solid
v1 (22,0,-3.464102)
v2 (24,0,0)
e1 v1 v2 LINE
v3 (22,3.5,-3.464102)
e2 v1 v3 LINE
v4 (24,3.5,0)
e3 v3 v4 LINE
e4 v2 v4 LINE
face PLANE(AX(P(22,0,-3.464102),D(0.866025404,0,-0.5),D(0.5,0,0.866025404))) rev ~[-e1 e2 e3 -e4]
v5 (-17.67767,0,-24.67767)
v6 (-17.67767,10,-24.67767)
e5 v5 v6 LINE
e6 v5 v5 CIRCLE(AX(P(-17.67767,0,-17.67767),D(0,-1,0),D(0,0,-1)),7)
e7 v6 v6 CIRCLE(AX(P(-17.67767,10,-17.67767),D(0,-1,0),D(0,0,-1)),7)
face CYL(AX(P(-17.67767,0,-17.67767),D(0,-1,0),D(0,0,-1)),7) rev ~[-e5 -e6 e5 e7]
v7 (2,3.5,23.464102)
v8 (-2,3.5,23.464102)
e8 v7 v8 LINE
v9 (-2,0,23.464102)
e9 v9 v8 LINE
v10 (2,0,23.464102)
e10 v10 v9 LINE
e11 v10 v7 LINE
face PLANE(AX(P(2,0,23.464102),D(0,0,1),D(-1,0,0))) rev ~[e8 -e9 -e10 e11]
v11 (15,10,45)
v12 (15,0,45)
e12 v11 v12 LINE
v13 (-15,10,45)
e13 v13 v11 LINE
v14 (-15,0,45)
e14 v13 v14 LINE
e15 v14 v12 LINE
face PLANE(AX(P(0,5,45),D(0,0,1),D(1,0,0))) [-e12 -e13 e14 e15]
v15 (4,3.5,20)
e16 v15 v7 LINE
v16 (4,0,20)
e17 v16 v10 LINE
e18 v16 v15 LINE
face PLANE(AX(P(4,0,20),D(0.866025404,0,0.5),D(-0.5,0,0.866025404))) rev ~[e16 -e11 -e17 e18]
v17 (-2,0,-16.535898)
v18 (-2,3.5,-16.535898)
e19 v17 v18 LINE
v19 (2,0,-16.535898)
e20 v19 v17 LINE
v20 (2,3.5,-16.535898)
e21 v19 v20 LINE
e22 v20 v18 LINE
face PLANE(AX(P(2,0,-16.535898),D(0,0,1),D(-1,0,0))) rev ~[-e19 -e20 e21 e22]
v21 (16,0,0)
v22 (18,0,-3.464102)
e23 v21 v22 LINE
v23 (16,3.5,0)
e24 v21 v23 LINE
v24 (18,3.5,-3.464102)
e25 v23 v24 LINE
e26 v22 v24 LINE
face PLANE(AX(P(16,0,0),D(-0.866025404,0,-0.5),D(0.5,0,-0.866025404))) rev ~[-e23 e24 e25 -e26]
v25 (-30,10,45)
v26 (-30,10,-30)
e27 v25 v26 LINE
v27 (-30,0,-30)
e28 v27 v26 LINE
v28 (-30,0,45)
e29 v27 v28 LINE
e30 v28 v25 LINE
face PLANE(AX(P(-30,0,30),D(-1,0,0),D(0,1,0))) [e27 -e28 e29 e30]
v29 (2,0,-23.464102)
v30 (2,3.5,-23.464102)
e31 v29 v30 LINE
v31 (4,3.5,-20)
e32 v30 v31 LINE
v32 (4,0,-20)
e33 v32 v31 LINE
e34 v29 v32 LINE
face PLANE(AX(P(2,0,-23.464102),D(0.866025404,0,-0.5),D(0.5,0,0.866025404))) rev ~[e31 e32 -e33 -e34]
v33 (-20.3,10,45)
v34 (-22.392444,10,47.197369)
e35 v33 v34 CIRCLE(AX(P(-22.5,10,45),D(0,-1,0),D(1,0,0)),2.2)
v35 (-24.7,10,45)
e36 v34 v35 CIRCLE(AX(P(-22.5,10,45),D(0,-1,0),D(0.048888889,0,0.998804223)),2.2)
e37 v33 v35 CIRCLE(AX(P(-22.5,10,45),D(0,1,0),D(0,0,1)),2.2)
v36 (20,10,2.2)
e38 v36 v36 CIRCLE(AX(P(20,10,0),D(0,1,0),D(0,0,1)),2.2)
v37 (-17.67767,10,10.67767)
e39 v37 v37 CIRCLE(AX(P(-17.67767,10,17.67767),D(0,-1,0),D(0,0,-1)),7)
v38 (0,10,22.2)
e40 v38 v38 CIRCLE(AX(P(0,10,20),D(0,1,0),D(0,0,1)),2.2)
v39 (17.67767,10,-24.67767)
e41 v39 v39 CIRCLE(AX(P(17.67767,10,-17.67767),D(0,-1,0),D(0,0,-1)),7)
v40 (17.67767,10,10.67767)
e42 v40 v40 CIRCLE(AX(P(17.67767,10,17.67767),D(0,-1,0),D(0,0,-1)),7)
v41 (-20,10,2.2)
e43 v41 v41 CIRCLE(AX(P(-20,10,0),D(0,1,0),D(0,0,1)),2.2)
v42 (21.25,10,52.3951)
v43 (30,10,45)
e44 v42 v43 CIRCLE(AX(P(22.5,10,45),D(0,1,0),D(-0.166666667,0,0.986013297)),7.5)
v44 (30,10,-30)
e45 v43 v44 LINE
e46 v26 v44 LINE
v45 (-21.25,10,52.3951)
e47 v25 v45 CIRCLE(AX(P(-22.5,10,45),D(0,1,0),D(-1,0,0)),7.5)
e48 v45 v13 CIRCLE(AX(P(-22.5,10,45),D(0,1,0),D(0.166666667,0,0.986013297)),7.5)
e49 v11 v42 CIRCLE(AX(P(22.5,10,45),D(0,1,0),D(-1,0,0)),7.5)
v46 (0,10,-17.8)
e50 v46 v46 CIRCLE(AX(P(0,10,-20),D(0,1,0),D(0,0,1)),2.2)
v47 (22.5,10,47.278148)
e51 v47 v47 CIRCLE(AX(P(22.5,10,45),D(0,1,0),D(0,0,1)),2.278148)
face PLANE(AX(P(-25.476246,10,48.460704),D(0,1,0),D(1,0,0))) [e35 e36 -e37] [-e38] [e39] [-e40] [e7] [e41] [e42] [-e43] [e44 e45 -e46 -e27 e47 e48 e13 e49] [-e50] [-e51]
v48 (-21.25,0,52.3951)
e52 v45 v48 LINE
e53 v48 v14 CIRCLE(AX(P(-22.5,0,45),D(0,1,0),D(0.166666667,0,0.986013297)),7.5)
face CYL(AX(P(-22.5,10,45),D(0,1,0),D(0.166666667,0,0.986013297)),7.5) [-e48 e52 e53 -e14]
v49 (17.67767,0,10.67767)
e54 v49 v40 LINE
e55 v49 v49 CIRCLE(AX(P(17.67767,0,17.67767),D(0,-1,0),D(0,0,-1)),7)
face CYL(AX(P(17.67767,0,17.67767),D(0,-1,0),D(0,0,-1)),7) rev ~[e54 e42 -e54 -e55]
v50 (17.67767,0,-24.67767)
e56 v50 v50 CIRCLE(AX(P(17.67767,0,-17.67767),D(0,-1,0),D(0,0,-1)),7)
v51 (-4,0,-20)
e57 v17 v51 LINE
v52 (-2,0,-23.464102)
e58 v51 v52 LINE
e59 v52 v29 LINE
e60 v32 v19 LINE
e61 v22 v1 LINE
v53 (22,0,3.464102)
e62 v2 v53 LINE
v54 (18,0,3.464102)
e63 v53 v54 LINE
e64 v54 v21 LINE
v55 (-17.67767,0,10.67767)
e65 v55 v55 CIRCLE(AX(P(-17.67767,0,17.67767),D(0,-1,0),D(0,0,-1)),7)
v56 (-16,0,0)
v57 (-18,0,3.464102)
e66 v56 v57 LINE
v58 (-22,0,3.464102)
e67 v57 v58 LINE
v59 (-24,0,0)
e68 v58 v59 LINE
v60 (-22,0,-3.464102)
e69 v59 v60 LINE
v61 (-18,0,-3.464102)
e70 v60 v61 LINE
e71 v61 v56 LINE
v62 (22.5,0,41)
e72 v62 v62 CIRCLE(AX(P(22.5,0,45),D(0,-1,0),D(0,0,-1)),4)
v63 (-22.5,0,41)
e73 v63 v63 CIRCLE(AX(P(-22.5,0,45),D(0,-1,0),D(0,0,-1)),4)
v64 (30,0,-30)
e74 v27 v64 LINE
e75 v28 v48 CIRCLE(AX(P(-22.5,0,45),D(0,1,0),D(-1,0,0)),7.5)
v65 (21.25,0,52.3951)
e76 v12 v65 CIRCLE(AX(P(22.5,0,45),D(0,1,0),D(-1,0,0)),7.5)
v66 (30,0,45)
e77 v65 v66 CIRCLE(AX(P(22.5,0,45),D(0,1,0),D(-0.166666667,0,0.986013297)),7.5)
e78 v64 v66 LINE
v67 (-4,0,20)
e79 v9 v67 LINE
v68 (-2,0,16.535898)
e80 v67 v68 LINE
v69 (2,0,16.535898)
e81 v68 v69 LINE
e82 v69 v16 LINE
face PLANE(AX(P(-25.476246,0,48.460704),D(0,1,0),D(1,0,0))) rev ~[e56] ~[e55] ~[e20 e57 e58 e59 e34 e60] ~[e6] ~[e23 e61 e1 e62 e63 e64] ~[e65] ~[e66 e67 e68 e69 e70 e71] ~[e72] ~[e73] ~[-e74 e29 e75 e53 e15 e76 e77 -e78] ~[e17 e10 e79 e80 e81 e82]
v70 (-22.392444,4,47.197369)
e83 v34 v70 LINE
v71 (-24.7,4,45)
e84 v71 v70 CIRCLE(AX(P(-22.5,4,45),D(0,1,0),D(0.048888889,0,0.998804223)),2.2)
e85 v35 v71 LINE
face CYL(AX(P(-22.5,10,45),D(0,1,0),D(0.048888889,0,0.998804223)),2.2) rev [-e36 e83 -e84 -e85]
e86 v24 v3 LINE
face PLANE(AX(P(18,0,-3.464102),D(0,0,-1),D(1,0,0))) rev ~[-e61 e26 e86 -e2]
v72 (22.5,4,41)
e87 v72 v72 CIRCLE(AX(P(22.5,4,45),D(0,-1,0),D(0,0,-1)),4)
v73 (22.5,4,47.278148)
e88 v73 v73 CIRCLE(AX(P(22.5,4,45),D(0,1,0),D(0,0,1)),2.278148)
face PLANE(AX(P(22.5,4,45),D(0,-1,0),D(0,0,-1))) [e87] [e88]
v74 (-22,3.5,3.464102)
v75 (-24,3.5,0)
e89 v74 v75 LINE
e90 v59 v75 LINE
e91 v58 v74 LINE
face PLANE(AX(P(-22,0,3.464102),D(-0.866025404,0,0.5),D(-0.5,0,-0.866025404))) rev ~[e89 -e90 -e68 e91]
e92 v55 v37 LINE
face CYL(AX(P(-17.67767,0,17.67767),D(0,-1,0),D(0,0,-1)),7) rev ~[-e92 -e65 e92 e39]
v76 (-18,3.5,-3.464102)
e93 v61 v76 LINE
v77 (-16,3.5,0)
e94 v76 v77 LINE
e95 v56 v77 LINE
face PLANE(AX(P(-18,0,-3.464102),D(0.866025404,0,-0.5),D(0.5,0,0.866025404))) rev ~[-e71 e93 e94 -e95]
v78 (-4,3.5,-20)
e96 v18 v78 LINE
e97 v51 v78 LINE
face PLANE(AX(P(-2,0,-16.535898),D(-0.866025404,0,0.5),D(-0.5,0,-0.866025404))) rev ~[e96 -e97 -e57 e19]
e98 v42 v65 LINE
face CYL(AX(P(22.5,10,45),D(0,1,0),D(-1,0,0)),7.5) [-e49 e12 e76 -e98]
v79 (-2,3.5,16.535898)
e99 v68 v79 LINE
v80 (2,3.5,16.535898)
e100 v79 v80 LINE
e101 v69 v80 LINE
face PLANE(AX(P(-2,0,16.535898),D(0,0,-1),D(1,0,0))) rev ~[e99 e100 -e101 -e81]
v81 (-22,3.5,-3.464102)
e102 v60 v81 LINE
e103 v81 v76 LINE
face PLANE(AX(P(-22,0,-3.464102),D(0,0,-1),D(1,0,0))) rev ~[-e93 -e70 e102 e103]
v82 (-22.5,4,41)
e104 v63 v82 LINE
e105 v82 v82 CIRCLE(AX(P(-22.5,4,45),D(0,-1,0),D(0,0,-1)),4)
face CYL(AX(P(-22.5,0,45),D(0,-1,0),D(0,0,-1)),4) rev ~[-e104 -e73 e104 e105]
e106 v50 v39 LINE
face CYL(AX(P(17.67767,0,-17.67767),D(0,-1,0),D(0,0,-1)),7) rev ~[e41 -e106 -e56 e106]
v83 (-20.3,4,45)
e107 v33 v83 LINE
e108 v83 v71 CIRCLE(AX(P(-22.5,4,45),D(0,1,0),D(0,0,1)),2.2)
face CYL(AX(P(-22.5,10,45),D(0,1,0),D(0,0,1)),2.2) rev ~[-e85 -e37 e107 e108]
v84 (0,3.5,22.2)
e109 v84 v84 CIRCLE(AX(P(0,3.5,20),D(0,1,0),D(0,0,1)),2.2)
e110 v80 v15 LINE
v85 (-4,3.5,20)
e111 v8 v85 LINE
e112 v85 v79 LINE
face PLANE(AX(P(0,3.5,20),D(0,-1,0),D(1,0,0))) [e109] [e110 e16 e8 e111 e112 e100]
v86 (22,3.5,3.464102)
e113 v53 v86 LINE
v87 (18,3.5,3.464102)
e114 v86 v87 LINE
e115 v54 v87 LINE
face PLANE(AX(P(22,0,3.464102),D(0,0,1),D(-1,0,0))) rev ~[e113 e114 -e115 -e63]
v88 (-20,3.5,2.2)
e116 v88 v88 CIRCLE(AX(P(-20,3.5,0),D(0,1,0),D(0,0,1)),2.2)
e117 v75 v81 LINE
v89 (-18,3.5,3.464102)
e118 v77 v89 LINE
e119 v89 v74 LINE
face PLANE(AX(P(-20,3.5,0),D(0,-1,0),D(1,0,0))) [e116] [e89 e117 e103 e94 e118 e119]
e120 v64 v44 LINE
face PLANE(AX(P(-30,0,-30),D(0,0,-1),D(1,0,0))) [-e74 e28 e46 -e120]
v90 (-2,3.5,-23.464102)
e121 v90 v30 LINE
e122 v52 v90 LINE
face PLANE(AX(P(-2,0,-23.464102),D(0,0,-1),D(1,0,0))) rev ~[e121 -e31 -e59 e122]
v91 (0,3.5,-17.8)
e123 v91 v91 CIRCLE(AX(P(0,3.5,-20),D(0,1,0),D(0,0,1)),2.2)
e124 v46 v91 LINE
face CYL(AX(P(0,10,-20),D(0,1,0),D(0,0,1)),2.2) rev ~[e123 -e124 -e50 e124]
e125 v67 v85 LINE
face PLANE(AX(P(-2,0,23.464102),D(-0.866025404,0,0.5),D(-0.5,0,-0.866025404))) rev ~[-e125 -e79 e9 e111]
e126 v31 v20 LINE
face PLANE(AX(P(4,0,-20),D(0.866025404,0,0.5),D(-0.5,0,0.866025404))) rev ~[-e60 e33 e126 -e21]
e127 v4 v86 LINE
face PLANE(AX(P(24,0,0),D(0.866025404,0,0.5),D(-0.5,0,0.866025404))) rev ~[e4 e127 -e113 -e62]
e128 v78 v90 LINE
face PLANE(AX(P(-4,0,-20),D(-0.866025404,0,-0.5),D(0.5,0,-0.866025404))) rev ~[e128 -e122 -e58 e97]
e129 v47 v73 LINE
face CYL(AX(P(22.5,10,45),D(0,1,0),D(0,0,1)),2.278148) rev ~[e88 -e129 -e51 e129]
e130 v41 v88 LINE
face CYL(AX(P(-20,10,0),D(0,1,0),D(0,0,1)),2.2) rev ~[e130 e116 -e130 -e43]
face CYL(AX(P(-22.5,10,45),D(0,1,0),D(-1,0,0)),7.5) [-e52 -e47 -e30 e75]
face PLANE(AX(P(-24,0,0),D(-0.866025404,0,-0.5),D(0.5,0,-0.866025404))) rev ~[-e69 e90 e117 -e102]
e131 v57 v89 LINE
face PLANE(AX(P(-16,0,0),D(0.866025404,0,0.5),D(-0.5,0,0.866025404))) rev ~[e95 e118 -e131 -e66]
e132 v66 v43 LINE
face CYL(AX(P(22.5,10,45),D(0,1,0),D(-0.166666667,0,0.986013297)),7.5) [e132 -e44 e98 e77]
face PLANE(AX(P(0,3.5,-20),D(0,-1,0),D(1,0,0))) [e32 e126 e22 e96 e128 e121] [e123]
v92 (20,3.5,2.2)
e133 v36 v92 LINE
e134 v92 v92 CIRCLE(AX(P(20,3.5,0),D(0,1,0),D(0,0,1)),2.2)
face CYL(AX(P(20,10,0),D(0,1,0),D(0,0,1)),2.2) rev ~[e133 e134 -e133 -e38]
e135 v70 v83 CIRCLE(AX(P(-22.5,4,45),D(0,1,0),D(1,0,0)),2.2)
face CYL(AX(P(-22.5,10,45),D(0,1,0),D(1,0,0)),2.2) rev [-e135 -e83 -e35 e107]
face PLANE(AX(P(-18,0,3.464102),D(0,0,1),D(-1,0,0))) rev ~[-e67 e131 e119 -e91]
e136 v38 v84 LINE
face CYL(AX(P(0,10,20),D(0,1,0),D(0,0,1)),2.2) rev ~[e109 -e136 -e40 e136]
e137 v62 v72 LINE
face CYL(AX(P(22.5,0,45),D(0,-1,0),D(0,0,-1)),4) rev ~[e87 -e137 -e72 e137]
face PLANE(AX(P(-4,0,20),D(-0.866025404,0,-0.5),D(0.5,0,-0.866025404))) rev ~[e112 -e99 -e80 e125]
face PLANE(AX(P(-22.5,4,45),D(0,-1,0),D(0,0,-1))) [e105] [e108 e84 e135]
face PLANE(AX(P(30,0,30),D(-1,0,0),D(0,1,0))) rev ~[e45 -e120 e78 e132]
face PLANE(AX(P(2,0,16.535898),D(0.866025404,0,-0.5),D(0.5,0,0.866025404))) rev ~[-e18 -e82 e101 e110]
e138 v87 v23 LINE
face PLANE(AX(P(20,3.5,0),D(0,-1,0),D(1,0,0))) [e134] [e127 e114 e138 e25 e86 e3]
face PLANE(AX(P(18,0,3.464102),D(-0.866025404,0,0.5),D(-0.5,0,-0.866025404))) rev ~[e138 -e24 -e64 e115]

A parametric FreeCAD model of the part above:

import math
import FreeCAD as App
import Part
import Sketcher

V = App.Vector
Q = App.Units.Quantity

doc = App.newDocument("Part")
body = doc.addObject("PartDesign::Body", "Body")

sketch1 = doc.addObject("Sketcher::SketchObject", "Sketch")
body.addObject(sketch1)
sketch1.AttachmentSupport = (doc.XZ_Plane, [""])
sketch1.MapMode = "FlatFace"
sketch1.addGeometry([
    Part.LineSegment(V(-30, -30, 0), V(-30, 30, 0)),
    Part.LineSegment(V(-30, 30, 0), V(30, 30, 0)),
    Part.LineSegment(V(30, 30, 0), V(30, -30, 0)),
    Part.LineSegment(V(30, -30, 0), V(-30, -30, 0)),
], False)
sketch1.addConstraint([
    Sketcher.Constraint("Coincident", 0, 2, 1, 1),
    Sketcher.Constraint("Coincident", 1, 2, 2, 1),
    Sketcher.Constraint("Coincident", 2, 2, 3, 1),
    Sketcher.Constraint("Coincident", 3, 2, 0, 1),
    Sketcher.Constraint("Vertical", 0),
    Sketcher.Constraint("Horizontal", 1),
    Sketcher.Constraint("Vertical", 2),
    Sketcher.Constraint("Horizontal", 3),
    Sketcher.Constraint("Symmetric", 0, 2, 2, 2, -1, 1),
    Sketcher.Constraint("Equal", 3, 0),
    Sketcher.Constraint("DistanceX", 1, 1, 1, 2, Q("60 mm")),
])
pad1 = doc.addObject("PartDesign::Pad", "Pad")
body.addObject(pad1)
pad1.Profile = sketch1
pad1.Length = 10
pad1.Reversed = True

sketch2 = doc.addObject("Sketcher::SketchObject", "Sketch001")
body.addObject(sketch2)
sketch2.AttachmentSupport = (doc.XZ_Plane, [""])
sketch2.MapMode = "FlatFace"
sketch2.AttachmentOffset = App.Placement(V(0, 0, -10), App.Rotation())
sketch2.addGeometry([
    Part.Circle(V(0, -20, 0), V(0, 0, 1), 2.2),
    Part.Circle(V(-20, 0, 0), V(0, 0, 1), 2.2),
    Part.Circle(V(0, 20, 0), V(0, 0, 1), 2.2),
    Part.Circle(V(20, 0, 0), V(0, 0, 1), 2.2),
], False)
sketch2.addConstraint([
    Sketcher.Constraint("Equal", 0, 1),
    Sketcher.Constraint("Equal", 1, 2),
    Sketcher.Constraint("Equal", 2, 3),
    Sketcher.Constraint("Symmetric", 0, 3, 2, 3, -1, 1),
    Sketcher.Constraint("Symmetric", 1, 3, 3, 3, -1, 1),
    Sketcher.Constraint("PointOnObject", 0, 3, -2),
    Sketcher.Constraint("PointOnObject", 1, 3, -1),
    Sketcher.Constraint("Diameter", 0, Q("4.4 mm")),
    Sketcher.Constraint("DistanceY", 0, 3, -1, 1, Q("20 mm")),
    Sketcher.Constraint("DistanceX", 1, 3, -1, 1, Q("20 mm")),
])
pocket1 = doc.addObject("PartDesign::Pocket", "Pocket")
body.addObject(pocket1)
pocket1.Profile = sketch2
pocket1.Length = 10
pocket1.Reversed = True

sketch3 = doc.addObject("Sketcher::SketchObject", "Sketch002")
body.addObject(sketch3)
sketch3.AttachmentSupport = (doc.XZ_Plane, [""])
sketch3.MapMode = "FlatFace"
sketch3.addGeometry([
    Part.LineSegment(V(4, 20, 0), V(2, 23.5, 0)),
    Part.LineSegment(V(2, 23.5, 0), V(-2, 23.5, 0)),
    Part.LineSegment(V(-2, 23.5, 0), V(-4, 20, 0)),
    Part.LineSegment(V(-4, 20, 0), V(-2, 16.5, 0)),
    Part.LineSegment(V(-2, 16.5, 0), V(2, 16.5, 0)),
    Part.LineSegment(V(2, 16.5, 0), V(4, 20, 0)),
    Part.LineSegment(V(-16, 0, 0), V(-18, 3.5, 0)),
    Part.LineSegment(V(-18, 3.5, 0), V(-22, 3.5, 0)),
    Part.LineSegment(V(-22, 3.5, 0), V(-24, 0, 0)),
    Part.LineSegment(V(-24, 0, 0), V(-22, -3.5, 0)),
    Part.LineSegment(V(-22, -3.5, 0), V(-18, -3.5, 0)),
    Part.LineSegment(V(-18, -3.5, 0), V(-16, 0, 0)),
    Part.LineSegment(V(24, 0, 0), V(22, 3.5, 0)),
    Part.LineSegment(V(22, 3.5, 0), V(18, 3.5, 0)),
    Part.LineSegment(V(18, 3.5, 0), V(16, 0, 0)),
    Part.LineSegment(V(16, 0, 0), V(18, -3.5, 0)),
    Part.LineSegment(V(18, -3.5, 0), V(22, -3.5, 0)),
    Part.LineSegment(V(22, -3.5, 0), V(24, 0, 0)),
    Part.LineSegment(V(4, -20, 0), V(2, -16.5, 0)),
    Part.LineSegment(V(2, -16.5, 0), V(-2, -16.5, 0)),
    Part.LineSegment(V(-2, -16.5, 0), V(-4, -20, 0)),
    Part.LineSegment(V(-4, -20, 0), V(-2, -23.5, 0)),
    Part.LineSegment(V(-2, -23.5, 0), V(2, -23.5, 0)),
    Part.LineSegment(V(2, -23.5, 0), V(4, -20, 0)),
], False)
sketch3.addConstraint([
    Sketcher.Constraint("Coincident", 0, 2, 1, 1),
    Sketcher.Constraint("Coincident", 1, 2, 2, 1),
    Sketcher.Constraint("Coincident", 2, 2, 3, 1),
    Sketcher.Constraint("Coincident", 3, 2, 4, 1),
    Sketcher.Constraint("Coincident", 4, 2, 5, 1),
    Sketcher.Constraint("Coincident", 5, 2, 0, 1),
    Sketcher.Constraint("Coincident", 6, 2, 7, 1),
    Sketcher.Constraint("Coincident", 7, 2, 8, 1),
    Sketcher.Constraint("Coincident", 8, 2, 9, 1),
    Sketcher.Constraint("Coincident", 9, 2, 10, 1),
    Sketcher.Constraint("Coincident", 10, 2, 11, 1),
    Sketcher.Constraint("Coincident", 11, 2, 6, 1),
    Sketcher.Constraint("Coincident", 12, 2, 13, 1),
    Sketcher.Constraint("Coincident", 13, 2, 14, 1),
    Sketcher.Constraint("Coincident", 14, 2, 15, 1),
    Sketcher.Constraint("Coincident", 15, 2, 16, 1),
    Sketcher.Constraint("Coincident", 16, 2, 17, 1),
    Sketcher.Constraint("Coincident", 17, 2, 12, 1),
    Sketcher.Constraint("Coincident", 18, 2, 19, 1),
    Sketcher.Constraint("Coincident", 19, 2, 20, 1),
    Sketcher.Constraint("Coincident", 20, 2, 21, 1),
    Sketcher.Constraint("Coincident", 21, 2, 22, 1),
    Sketcher.Constraint("Coincident", 22, 2, 23, 1),
    Sketcher.Constraint("Coincident", 23, 2, 18, 1),
    Sketcher.Constraint("Horizontal", 1),
    Sketcher.Constraint("Horizontal", 4),
    Sketcher.Constraint("Horizontal", 7),
    Sketcher.Constraint("Horizontal", 10),
    Sketcher.Constraint("Horizontal", 13),
    Sketcher.Constraint("Horizontal", 16),
    Sketcher.Constraint("Horizontal", 19),
    Sketcher.Constraint("Horizontal", 22),
    Sketcher.Constraint("Symmetric", 9, 2, 12, 2, -1, 1),
    Sketcher.Constraint("Symmetric", 11, 2, 14, 2, -1, 1),
    Sketcher.Constraint("Symmetric", 6, 2, 15, 2, -1, 1),
    Sketcher.Constraint("Symmetric", 8, 2, 17, 2, -1, 1),
    Sketcher.Constraint("Symmetric", 3, 2, 18, 2, -1, 1),
    Sketcher.Constraint("Symmetric", 5, 2, 20, 2, -1, 1),
    Sketcher.Constraint("Symmetric", 0, 2, 21, 2, -1, 1),
    Sketcher.Constraint("Symmetric", 2, 2, 23, 2, -1, 1),
    Sketcher.Constraint("Symmetric", 2, 2, 5, 2, -2),
    Sketcher.Constraint("Symmetric", 7, 2, 12, 2, -2),
    Sketcher.Constraint("PointOnObject", 8, 2, -1),
    Sketcher.Constraint("PointOnObject", 11, 2, -1),
    Sketcher.Constraint("Parallel", 0, 3),
    Sketcher.Constraint("Parallel", 2, 5),
    Sketcher.Constraint("Parallel", 3, 6),
    Sketcher.Constraint("Parallel", 5, 8),
    Sketcher.Constraint("Parallel", 6, 9),
    Sketcher.Constraint("Parallel", 8, 11),
    Sketcher.Constraint("Parallel", 11, 14),
    Sketcher.Constraint("Parallel", 14, 17),
    Sketcher.Constraint("Parallel", 17, 20),
    Sketcher.Constraint("Parallel", 20, 23),
    Sketcher.Constraint("Vertical", 1, 2, 3, 2),
    Sketcher.Constraint("Equal", 4, 7),
    Sketcher.Constraint("Equal", 5, 6),
    Sketcher.Constraint("DistanceX", 1, 2, 1, 1, Q("4 mm")),
    Sketcher.Constraint("Angle", 0, Q("120 deg")),
    Sketcher.Constraint("Distance", 0, Q("4 mm")),
    Sketcher.Constraint("DistanceY", -1, 1, 2, 2, Q("20 mm")),
    Sketcher.Constraint("DistanceX", 6, 2, -1, 1, Q("18 mm")),
])
pocket2 = doc.addObject("PartDesign::Pocket", "Pocket001")
body.addObject(pocket2)
pocket2.Profile = sketch3
pocket2.Length = 3.5

sketch4 = doc.addObject("Sketcher::SketchObject", "Sketch003")
body.addObject(sketch4)
sketch4.AttachmentSupport = (doc.XZ_Plane, [""])
sketch4.MapMode = "FlatFace"
sketch4.addGeometry([
    Part.Circle(V(-18, 18, 0), V(0, 0, 1), 7),
    Part.Circle(V(-18, -18, 0), V(0, 0, 1), 7),
    Part.Circle(V(18, -18, 0), V(0, 0, 1), 7),
    Part.Circle(V(18, 18, 0), V(0, 0, 1), 7),
], False)
sketch4.addConstraint([
    Sketcher.Constraint("Equal", 0, 1),
    Sketcher.Constraint("Equal", 1, 2),
    Sketcher.Constraint("Equal", 2, 3),
    Sketcher.Constraint("Symmetric", 0, 3, 2, 3, -1, 1),
    Sketcher.Constraint("Symmetric", 1, 3, 3, 3, -1, 1),
    Sketcher.Constraint("Symmetric", 1, 3, 2, 3, -2),
    Sketcher.Constraint("Diameter", 0, Q("14 mm")),
    Sketcher.Constraint("DistanceX", 0, 3, -1, 1, Q("17.67767 mm")),
    Sketcher.Constraint("DistanceY", -1, 1, 0, 3, Q("17.67767 mm")),
])
pocket3 = doc.addObject("PartDesign::Pocket", "Pocket002")
body.addObject(pocket3)
pocket3.Profile = sketch4
pocket3.Type = "ThroughAll"

sketch5 = doc.addObject("Sketcher::SketchObject", "Sketch004")
body.addObject(sketch5)
sketch5.AttachmentSupport = (doc.XY_Plane, [""])
sketch5.MapMode = "FlatFace"
sketch5.AttachmentOffset = App.Placement(V(0, 0, 30), App.Rotation())
sketch5.addGeometry([
    Part.LineSegment(V(-30, 10, 0), V(-30, 0, 0)),
    Part.LineSegment(V(-30, 0, 0), V(30, 0, 0)),
    Part.LineSegment(V(30, 0, 0), V(30, 10, 0)),
    Part.LineSegment(V(30, 10, 0), V(-30, 10, 0)),
], False)
sketch5.addConstraint([
    Sketcher.Constraint("Coincident", 0, 2, 1, 1),
    Sketcher.Constraint("Coincident", 1, 2, 2, 1),
    Sketcher.Constraint("Coincident", 2, 2, 3, 1),
    Sketcher.Constraint("Coincident", 3, 2, 0, 1),
    Sketcher.Constraint("Vertical", 0),
    Sketcher.Constraint("Horizontal", 1),
    Sketcher.Constraint("Vertical", 2),
    Sketcher.Constraint("Horizontal", 3),
    Sketcher.Constraint("Symmetric", 0, 2, 1, 2, -1, 1),
    Sketcher.Constraint("DistanceX", 1, 1, 1, 2, Q("60 mm")),
    Sketcher.Constraint("DistanceY", 0, 2, 0, 1, Q("10 mm")),
])
pad2 = doc.addObject("PartDesign::Pad", "Pad001")
body.addObject(pad2)
pad2.Profile = sketch5
pad2.Length = 15

sketch6 = doc.addObject("Sketcher::SketchObject", "Sketch005")
body.addObject(sketch6)
sketch6.AttachmentSupport = (doc.XZ_Plane, [""])
sketch6.MapMode = "FlatFace"
sketch6.AttachmentOffset = App.Placement(V(0, 0, -10), App.Rotation())
sketch6.addGeometry([
    Part.ArcOfCircle(Part.Circle(V(-22.5, 45, 0), V(0, 0, 1), 7.5), math.radians(80), math.radians(180)),
    Part.ArcOfCircle(Part.Circle(V(-22.5, 45, 0), V(0, 0, 1), 7.5), math.radians(0), math.radians(80)),
    Part.ArcOfCircle(Part.Circle(V(-22.5, 45, 0), V(0, 0, 1), 7.5), math.radians(-80), math.radians(0)),
    Part.ArcOfCircle(Part.Circle(V(-22.5, 45, 0), V(0, 0, 1), 7.5), math.radians(180), math.radians(280)),
    Part.ArcOfCircle(Part.Circle(V(-22.5, 45, 0), V(0, 0, 1), 2.2), math.radians(87), math.radians(180)),
    Part.ArcOfCircle(Part.Circle(V(-22.5, 45, 0), V(0, 0, 1), 2.2), math.radians(180), math.radians(273)),
    Part.ArcOfCircle(Part.Circle(V(-22.5, 45, 0), V(0, 0, 1), 2.2), math.radians(-87), math.radians(0)),
    Part.ArcOfCircle(Part.Circle(V(-22.5, 45, 0), V(0, 0, 1), 2.2), math.radians(0), math.radians(87)),
    Part.ArcOfCircle(Part.Circle(V(22.5, 45, 0), V(0, 0, 1), 7.5), math.radians(0), math.radians(100)),
    Part.ArcOfCircle(Part.Circle(V(22.5, 45, 0), V(0, 0, 1), 7.5), math.radians(-100), math.radians(0)),
    Part.ArcOfCircle(Part.Circle(V(22.5, 45, 0), V(0, 0, 1), 7.5), math.radians(180), math.radians(260)),
    Part.ArcOfCircle(Part.Circle(V(22.5, 45, 0), V(0, 0, 1), 7.5), math.radians(100), math.radians(180)),
    Part.ArcOfCircle(Part.Circle(V(22.5, 45, 0), V(0, 0, 1), 2.2), math.radians(0), math.radians(93)),
    Part.ArcOfCircle(Part.Circle(V(22.5, 45, 0), V(0, 0, 1), 2.2), math.radians(93), math.radians(180)),
    Part.ArcOfCircle(Part.Circle(V(22.5, 45, 0), V(0, 0, 1), 2.2), math.radians(180), math.radians(267)),
    Part.ArcOfCircle(Part.Circle(V(22.5, 45, 0), V(0, 0, 1), 2.2), math.radians(-93), math.radians(0)),
], False)
sketch6.addConstraint([
    Sketcher.Constraint("Tangent", 0, 1, 1, 2),
    Sketcher.Constraint("Tangent", 1, 1, 2, 2),
    Sketcher.Constraint("Tangent", 2, 1, 3, 2),
    Sketcher.Constraint("Tangent", 3, 1, 0, 2),
    Sketcher.Constraint("Tangent", 4, 2, 5, 1),
    Sketcher.Constraint("Tangent", 5, 2, 6, 1),
    Sketcher.Constraint("Tangent", 6, 2, 7, 1),
    Sketcher.Constraint("Tangent", 7, 2, 4, 1),
    Sketcher.Constraint("Tangent", 8, 1, 9, 2),
    Sketcher.Constraint("Tangent", 9, 1, 10, 2),
    Sketcher.Constraint("Tangent", 10, 1, 11, 2),
    Sketcher.Constraint("Tangent", 11, 1, 8, 2),
    Sketcher.Constraint("Tangent", 12, 2, 13, 1),
    Sketcher.Constraint("Tangent", 13, 2, 14, 1),
    Sketcher.Constraint("Tangent", 14, 2, 15, 1),
    Sketcher.Constraint("Tangent", 15, 2, 12, 1),
    Sketcher.Constraint("Coincident", 4, 3, 0, 3),
    Sketcher.Constraint("Coincident", 12, 3, 8, 3),
    Sketcher.Constraint("Equal", 0, 1),
    Sketcher.Constraint("Equal", 4, 5),
    Sketcher.Constraint("Equal", 3, 8),
    Sketcher.Constraint("Equal", 8, 9),
    Sketcher.Constraint("Equal", 7, 12),
    Sketcher.Constraint("Equal", 12, 13),
    Sketcher.Constraint("Symmetric", 0, 3, 8, 3, -2),
    Sketcher.Constraint("Horizontal", 15, 3, 1, 1),
    Sketcher.Constraint("Horizontal", 1, 1, 3, 1),
    Sketcher.Constraint("Horizontal", 3, 1, 4, 2),
    Sketcher.Constraint("Horizontal", 4, 2, 6, 2),
    Sketcher.Constraint("Horizontal", 6, 2, 8, 1),
    Sketcher.Constraint("Horizontal", 2, 1, 9, 1),
    Sketcher.Constraint("Horizontal", 8, 1, 10, 1),
    Sketcher.Constraint("Horizontal", 0, 1, 11, 1),
    Sketcher.Constraint("Horizontal", 7, 2, 12, 2),
    Sketcher.Constraint("Horizontal", 10, 1, 13, 2),
    Sketcher.Constraint("Horizontal", 5, 2, 14, 2),
    Sketcher.Constraint("Horizontal", 13, 2, 15, 2),
    Sketcher.Constraint("Vertical", 0, 1, 2, 1),
    Sketcher.Constraint("Vertical", 5, 2, 7, 2),
    Sketcher.Constraint("Radius", 0, Q("7.5 mm")),
    Sketcher.Constraint("Radius", 4, Q("2.2 mm")),
    Sketcher.Constraint("DistanceY", -1, 1, 0, 3, Q("45 mm")),
    Sketcher.Constraint("DistanceX", 1, 1, -1, 1, Q("15 mm")),
    Sketcher.Constraint("DistanceX", 0, 1, -1, 1, Q("21.25 mm")),
    Sketcher.Constraint("DistanceY", -1, 1, 5, 2, Q("42.802631 mm")),
])
pad3 = doc.addObject("PartDesign::Pad", "Pad002")
body.addObject(pad3)
pad3.Profile = sketch6
pad3.Length = 10

sketch7 = doc.addObject("Sketcher::SketchObject", "Sketch006")
body.addObject(sketch7)
sketch7.AttachmentSupport = (doc.XZ_Plane, [""])
sketch7.MapMode = "FlatFace"
sketch7.AttachmentOffset = App.Placement(V(0, 0, -10), App.Rotation())
sketch7.addGeometry([
    Part.Circle(V(22.5, 45, 0), V(0, 0, 1), 2.3),
    Part.Circle(V(-22.5, 45, 0), V(0, 0, 1), 2.2),
], False)
sketch7.addConstraint([
    Sketcher.Constraint("Symmetric", 0, 3, 1, 3, -2),
    Sketcher.Constraint("Diameter", 1, Q("4.4 mm")),
    Sketcher.Constraint("DistanceY", -1, 1, 0, 3, Q("45 mm")),
    Sketcher.Constraint("DistanceX", 1, 3, 0, 3, Q("45 mm")),
    Sketcher.Constraint("Diameter", 0, Q("4.556296 mm")),
])
pocket4 = doc.addObject("PartDesign::Pocket", "Pocket003")
body.addObject(pocket4)
pocket4.Profile = sketch7
pocket4.Type = "ThroughAll"
pocket4.Reversed = True

sketch8 = doc.addObject("Sketcher::SketchObject", "Sketch007")
body.addObject(sketch8)
sketch8.AttachmentSupport = (doc.XZ_Plane, [""])
sketch8.MapMode = "FlatFace"
sketch8.addGeometry([
    Part.Circle(V(22.5, 45, 0), V(0, 0, 1), 4),
    Part.Circle(V(-22.5, 45, 0), V(0, 0, 1), 4),
], False)
sketch8.addConstraint([
    Sketcher.Constraint("Equal", 0, 1),
    Sketcher.Constraint("Symmetric", 0, 3, 1, 3, -2),
    Sketcher.Constraint("Diameter", 0, Q("8 mm")),
    Sketcher.Constraint("DistanceY", -1, 1, 0, 3, Q("45 mm")),
    Sketcher.Constraint("DistanceX", 1, 3, 0, 3, Q("45 mm")),
])
pocket5 = doc.addObject("PartDesign::Pocket", "Pocket004")
body.addObject(pocket5)
pocket5.Profile = sketch8
pocket5.Length = 4

doc.recompute()
